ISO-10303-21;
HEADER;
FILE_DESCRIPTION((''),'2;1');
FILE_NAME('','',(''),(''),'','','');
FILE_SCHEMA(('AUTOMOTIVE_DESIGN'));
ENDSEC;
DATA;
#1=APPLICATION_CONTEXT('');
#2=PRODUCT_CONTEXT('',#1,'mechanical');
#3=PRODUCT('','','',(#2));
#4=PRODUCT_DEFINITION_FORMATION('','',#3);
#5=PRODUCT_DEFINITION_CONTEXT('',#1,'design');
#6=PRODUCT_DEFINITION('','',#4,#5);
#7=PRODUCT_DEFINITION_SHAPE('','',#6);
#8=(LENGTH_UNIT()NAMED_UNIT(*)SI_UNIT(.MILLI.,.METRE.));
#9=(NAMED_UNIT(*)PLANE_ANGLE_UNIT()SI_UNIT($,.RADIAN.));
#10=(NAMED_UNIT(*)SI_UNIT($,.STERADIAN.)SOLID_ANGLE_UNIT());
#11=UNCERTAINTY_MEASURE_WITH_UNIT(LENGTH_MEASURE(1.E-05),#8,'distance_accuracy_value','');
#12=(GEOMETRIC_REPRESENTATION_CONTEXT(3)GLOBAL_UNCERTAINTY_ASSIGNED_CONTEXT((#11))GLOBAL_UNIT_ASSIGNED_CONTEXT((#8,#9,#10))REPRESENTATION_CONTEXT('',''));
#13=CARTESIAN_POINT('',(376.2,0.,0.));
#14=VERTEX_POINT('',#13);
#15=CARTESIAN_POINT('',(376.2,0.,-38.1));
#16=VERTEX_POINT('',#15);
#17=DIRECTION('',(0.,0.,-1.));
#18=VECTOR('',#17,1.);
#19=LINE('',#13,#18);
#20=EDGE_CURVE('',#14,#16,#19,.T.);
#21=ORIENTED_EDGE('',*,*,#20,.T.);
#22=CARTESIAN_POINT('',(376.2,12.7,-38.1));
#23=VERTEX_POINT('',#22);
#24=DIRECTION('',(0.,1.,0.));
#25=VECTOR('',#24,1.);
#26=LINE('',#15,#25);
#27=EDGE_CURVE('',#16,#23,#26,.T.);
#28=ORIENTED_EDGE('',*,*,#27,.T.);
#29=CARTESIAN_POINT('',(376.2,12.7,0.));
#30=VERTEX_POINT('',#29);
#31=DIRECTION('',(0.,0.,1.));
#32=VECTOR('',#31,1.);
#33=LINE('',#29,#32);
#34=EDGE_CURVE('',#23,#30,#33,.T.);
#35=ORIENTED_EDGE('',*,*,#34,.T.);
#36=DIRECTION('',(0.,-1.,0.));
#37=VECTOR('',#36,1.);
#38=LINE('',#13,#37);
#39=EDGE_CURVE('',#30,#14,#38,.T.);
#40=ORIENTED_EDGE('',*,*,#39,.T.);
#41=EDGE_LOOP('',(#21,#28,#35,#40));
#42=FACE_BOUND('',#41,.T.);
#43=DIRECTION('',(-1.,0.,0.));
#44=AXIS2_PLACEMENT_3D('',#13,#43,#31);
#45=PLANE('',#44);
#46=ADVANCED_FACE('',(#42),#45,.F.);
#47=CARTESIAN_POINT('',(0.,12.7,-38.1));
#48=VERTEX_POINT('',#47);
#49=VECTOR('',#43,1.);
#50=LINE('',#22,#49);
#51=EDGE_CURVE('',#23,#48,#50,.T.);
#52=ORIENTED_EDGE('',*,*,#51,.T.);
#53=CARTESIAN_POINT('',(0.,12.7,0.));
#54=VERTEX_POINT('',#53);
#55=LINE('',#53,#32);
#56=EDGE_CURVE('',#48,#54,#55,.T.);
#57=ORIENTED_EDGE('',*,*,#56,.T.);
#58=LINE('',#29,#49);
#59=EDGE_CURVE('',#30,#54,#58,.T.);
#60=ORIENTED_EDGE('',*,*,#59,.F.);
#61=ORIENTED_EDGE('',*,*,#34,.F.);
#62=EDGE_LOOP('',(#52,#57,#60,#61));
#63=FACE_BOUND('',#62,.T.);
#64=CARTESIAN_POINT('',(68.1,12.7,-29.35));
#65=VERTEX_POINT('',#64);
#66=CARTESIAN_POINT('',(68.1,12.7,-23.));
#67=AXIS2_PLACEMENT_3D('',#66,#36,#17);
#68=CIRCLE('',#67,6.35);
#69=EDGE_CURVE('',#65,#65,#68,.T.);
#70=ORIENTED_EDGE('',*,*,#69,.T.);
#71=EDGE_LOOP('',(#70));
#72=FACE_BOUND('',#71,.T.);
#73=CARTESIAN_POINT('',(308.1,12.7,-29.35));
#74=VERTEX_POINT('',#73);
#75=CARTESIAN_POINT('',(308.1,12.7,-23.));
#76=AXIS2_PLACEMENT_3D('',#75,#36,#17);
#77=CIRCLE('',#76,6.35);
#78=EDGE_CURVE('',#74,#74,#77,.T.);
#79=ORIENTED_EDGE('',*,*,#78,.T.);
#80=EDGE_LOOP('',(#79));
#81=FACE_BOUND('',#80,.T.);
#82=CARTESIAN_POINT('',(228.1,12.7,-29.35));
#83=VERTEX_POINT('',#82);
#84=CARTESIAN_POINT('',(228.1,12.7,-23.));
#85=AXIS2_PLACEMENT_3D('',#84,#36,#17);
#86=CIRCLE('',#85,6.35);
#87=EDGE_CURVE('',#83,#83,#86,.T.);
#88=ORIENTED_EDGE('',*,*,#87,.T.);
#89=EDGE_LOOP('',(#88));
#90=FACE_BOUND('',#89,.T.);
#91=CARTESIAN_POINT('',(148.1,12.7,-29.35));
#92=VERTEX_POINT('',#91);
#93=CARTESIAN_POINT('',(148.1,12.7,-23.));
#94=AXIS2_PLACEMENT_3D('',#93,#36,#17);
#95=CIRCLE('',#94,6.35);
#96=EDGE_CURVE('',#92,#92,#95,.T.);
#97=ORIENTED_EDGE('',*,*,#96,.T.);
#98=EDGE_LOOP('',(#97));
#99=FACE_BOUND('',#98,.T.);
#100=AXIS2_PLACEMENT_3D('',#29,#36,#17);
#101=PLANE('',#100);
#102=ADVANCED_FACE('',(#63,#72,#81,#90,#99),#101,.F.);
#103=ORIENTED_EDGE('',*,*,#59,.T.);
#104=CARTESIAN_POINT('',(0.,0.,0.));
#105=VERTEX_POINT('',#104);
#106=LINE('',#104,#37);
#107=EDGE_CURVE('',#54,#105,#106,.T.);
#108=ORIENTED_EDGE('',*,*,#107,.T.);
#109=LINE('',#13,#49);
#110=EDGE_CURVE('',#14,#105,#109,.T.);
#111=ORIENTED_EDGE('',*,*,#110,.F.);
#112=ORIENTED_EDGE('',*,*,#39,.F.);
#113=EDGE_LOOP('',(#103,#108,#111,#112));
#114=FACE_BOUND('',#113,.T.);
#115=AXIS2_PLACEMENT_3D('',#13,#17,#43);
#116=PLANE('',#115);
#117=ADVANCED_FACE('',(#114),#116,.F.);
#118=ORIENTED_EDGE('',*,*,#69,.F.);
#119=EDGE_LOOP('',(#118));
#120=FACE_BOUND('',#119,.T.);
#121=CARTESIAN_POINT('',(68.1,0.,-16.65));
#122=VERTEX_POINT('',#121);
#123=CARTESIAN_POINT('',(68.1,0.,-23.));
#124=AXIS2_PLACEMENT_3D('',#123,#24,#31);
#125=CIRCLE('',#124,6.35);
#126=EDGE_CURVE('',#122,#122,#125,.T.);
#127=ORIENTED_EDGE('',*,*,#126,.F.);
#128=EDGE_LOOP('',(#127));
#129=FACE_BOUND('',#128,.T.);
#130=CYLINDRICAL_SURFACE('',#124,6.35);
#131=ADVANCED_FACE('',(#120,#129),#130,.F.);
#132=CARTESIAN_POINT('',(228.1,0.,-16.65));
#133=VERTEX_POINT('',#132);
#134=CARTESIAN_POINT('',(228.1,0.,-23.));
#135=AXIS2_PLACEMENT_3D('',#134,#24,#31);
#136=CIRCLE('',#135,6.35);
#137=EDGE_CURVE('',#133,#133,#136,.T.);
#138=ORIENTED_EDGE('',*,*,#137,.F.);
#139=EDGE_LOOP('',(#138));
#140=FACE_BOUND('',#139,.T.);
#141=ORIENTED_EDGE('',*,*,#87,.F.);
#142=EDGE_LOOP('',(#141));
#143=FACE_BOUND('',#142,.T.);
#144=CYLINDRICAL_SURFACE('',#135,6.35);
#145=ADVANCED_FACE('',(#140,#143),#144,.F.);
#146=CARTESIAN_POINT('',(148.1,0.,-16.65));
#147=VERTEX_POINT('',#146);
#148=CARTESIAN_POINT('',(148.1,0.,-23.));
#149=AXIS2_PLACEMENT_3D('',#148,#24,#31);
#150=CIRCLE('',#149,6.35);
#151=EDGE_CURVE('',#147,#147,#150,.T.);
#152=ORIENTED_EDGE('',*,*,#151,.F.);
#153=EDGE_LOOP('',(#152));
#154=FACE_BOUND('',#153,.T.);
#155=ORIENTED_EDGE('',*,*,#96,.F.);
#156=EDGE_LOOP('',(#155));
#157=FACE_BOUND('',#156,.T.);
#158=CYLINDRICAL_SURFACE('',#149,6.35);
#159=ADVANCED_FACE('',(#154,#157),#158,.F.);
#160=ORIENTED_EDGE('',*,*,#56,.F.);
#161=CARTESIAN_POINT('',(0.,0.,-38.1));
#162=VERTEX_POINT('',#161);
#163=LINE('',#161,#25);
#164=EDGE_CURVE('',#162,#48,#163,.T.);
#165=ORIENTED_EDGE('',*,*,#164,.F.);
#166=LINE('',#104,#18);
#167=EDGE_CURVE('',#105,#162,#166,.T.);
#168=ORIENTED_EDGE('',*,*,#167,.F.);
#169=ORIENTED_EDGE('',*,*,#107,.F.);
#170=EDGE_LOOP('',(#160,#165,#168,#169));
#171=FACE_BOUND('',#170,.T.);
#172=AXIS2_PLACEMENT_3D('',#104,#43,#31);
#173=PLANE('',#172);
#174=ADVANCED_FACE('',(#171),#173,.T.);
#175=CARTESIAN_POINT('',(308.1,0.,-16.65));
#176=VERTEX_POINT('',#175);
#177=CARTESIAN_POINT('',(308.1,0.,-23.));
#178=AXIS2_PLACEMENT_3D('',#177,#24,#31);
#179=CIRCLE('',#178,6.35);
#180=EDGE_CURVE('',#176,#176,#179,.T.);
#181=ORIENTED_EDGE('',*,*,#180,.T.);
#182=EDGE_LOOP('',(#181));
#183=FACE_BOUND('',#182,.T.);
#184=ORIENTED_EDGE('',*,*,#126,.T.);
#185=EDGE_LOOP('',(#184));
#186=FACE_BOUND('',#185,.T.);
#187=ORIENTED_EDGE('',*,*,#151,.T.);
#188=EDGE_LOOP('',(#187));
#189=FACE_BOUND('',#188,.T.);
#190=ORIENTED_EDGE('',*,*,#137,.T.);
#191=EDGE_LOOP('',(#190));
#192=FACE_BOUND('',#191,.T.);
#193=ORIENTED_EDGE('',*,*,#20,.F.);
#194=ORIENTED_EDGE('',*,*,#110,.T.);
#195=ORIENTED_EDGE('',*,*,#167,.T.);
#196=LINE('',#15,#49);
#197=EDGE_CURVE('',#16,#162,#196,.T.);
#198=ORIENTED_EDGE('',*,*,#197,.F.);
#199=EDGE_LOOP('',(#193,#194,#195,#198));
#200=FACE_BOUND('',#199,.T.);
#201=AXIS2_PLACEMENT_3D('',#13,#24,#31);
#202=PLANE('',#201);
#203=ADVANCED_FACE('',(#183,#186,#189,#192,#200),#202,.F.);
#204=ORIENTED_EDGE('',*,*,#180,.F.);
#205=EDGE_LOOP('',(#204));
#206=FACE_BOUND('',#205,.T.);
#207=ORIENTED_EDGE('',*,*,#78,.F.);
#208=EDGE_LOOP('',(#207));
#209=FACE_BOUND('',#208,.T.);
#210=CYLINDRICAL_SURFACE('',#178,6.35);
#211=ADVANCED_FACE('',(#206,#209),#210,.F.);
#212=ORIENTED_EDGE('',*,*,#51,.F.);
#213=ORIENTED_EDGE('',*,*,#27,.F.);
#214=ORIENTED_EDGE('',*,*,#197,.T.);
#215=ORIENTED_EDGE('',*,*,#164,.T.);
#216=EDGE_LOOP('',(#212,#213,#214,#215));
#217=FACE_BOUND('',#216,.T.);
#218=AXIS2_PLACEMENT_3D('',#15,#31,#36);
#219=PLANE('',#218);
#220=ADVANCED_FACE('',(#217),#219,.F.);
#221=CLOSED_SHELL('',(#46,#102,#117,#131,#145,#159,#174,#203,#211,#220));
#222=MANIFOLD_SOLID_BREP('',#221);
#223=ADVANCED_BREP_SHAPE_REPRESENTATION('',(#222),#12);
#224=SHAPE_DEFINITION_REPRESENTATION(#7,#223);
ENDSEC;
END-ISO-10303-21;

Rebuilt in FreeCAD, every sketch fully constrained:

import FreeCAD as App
import Part
import Sketcher
from FreeCAD import Vector

doc = App.newDocument("Part")
body = doc.addObject("PartDesign::Body", "Body")

# Sketch on YZ plane
sketch1 = body.newObject("Sketcher::SketchObject", "Sketch")
sketch1.AttachmentSupport = (doc.getObject("YZ_Plane"), [""])
sketch1.MapMode = "FlatFace"
sketch1.addGeometry([
    Part.LineSegment(Vector(12.7, 0, 0), Vector(0, 0, 0)),
    Part.LineSegment(Vector(0, 0, 0), Vector(0, -38.1, 0)),
    Part.LineSegment(Vector(0, -38.1, 0), Vector(12.7, -38.1, 0)),
    Part.LineSegment(Vector(12.7, -38.1, 0), Vector(12.7, 0, 0)),
], False)
sketch1.addConstraint([
    Sketcher.Constraint("Coincident", 0, 2, 1, 1),
    Sketcher.Constraint("Coincident", 1, 2, 2, 1),
    Sketcher.Constraint("Coincident", 2, 2, 3, 1),
    Sketcher.Constraint("Coincident", 3, 2, 0, 1),
    Sketcher.Constraint("Horizontal", 0),
    Sketcher.Constraint("Vertical", 1),
    Sketcher.Constraint("Horizontal", 2),
    Sketcher.Constraint("Vertical", 3),
    Sketcher.Constraint("Coincident", 0, 2, -1, 1),
    Sketcher.Constraint("DistanceX", 0, 2, 0, 1, 12.7),
    Sketcher.Constraint("DistanceY", 1, 2, 1, 1, 38.1),
])
pad1 = body.newObject("PartDesign::Pad", "Pad")
pad1.Profile = sketch1
pad1.Length = 376.2

# Sketch on XZ plane
sketch2 = body.newObject("Sketcher::SketchObject", "Sketch001")
sketch2.AttachmentSupport = (doc.getObject("XZ_Plane"), [""])
sketch2.MapMode = "FlatFace"
sketch2.AttachmentOffset = App.Placement(Vector(0, 0, -12.7), App.Rotation())
sketch2.addGeometry([
    Part.Circle(Vector(308.1, -23, 0), Vector(0, 0, 1), 6.35),
    Part.Circle(Vector(228.1, -23, 0), Vector(0, 0, 1), 6.35),
    Part.Circle(Vector(148.1, -23, 0), Vector(0, 0, 1), 6.35),
    Part.Circle(Vector(68.1, -23, 0), Vector(0, 0, 1), 6.35),
], False)
sketch2.addConstraint([
    Sketcher.Constraint("Equal", 0, 1),
    Sketcher.Constraint("Equal", 1, 2),
    Sketcher.Constraint("Equal", 2, 3),
    Sketcher.Constraint("Horizontal", 0, 3, 1, 3),
    Sketcher.Constraint("Horizontal", 1, 3, 2, 3),
    Sketcher.Constraint("Horizontal", 2, 3, 3, 3),
    Sketcher.Constraint("Diameter", 0, 12.7),
    Sketcher.Constraint("DistanceY", 0, 3, -1, 1, 23.0),
    Sketcher.Constraint("DistanceX", 1, 3, 0, 3, 80.0),
    Sketcher.Constraint("DistanceX", 2, 3, 1, 3, 80.0),
    Sketcher.Constraint("DistanceX", 3, 3, 2, 3, 80.0),
    Sketcher.Constraint("DistanceX", -1, 1, 0, 3, 308.1),
])
pocket1 = body.newObject("PartDesign::Pocket", "Pocket")
pocket1.Profile = sketch2
pocket1.Type = "ThroughAll"
pocket1.Midplane = True

doc.recompute()
